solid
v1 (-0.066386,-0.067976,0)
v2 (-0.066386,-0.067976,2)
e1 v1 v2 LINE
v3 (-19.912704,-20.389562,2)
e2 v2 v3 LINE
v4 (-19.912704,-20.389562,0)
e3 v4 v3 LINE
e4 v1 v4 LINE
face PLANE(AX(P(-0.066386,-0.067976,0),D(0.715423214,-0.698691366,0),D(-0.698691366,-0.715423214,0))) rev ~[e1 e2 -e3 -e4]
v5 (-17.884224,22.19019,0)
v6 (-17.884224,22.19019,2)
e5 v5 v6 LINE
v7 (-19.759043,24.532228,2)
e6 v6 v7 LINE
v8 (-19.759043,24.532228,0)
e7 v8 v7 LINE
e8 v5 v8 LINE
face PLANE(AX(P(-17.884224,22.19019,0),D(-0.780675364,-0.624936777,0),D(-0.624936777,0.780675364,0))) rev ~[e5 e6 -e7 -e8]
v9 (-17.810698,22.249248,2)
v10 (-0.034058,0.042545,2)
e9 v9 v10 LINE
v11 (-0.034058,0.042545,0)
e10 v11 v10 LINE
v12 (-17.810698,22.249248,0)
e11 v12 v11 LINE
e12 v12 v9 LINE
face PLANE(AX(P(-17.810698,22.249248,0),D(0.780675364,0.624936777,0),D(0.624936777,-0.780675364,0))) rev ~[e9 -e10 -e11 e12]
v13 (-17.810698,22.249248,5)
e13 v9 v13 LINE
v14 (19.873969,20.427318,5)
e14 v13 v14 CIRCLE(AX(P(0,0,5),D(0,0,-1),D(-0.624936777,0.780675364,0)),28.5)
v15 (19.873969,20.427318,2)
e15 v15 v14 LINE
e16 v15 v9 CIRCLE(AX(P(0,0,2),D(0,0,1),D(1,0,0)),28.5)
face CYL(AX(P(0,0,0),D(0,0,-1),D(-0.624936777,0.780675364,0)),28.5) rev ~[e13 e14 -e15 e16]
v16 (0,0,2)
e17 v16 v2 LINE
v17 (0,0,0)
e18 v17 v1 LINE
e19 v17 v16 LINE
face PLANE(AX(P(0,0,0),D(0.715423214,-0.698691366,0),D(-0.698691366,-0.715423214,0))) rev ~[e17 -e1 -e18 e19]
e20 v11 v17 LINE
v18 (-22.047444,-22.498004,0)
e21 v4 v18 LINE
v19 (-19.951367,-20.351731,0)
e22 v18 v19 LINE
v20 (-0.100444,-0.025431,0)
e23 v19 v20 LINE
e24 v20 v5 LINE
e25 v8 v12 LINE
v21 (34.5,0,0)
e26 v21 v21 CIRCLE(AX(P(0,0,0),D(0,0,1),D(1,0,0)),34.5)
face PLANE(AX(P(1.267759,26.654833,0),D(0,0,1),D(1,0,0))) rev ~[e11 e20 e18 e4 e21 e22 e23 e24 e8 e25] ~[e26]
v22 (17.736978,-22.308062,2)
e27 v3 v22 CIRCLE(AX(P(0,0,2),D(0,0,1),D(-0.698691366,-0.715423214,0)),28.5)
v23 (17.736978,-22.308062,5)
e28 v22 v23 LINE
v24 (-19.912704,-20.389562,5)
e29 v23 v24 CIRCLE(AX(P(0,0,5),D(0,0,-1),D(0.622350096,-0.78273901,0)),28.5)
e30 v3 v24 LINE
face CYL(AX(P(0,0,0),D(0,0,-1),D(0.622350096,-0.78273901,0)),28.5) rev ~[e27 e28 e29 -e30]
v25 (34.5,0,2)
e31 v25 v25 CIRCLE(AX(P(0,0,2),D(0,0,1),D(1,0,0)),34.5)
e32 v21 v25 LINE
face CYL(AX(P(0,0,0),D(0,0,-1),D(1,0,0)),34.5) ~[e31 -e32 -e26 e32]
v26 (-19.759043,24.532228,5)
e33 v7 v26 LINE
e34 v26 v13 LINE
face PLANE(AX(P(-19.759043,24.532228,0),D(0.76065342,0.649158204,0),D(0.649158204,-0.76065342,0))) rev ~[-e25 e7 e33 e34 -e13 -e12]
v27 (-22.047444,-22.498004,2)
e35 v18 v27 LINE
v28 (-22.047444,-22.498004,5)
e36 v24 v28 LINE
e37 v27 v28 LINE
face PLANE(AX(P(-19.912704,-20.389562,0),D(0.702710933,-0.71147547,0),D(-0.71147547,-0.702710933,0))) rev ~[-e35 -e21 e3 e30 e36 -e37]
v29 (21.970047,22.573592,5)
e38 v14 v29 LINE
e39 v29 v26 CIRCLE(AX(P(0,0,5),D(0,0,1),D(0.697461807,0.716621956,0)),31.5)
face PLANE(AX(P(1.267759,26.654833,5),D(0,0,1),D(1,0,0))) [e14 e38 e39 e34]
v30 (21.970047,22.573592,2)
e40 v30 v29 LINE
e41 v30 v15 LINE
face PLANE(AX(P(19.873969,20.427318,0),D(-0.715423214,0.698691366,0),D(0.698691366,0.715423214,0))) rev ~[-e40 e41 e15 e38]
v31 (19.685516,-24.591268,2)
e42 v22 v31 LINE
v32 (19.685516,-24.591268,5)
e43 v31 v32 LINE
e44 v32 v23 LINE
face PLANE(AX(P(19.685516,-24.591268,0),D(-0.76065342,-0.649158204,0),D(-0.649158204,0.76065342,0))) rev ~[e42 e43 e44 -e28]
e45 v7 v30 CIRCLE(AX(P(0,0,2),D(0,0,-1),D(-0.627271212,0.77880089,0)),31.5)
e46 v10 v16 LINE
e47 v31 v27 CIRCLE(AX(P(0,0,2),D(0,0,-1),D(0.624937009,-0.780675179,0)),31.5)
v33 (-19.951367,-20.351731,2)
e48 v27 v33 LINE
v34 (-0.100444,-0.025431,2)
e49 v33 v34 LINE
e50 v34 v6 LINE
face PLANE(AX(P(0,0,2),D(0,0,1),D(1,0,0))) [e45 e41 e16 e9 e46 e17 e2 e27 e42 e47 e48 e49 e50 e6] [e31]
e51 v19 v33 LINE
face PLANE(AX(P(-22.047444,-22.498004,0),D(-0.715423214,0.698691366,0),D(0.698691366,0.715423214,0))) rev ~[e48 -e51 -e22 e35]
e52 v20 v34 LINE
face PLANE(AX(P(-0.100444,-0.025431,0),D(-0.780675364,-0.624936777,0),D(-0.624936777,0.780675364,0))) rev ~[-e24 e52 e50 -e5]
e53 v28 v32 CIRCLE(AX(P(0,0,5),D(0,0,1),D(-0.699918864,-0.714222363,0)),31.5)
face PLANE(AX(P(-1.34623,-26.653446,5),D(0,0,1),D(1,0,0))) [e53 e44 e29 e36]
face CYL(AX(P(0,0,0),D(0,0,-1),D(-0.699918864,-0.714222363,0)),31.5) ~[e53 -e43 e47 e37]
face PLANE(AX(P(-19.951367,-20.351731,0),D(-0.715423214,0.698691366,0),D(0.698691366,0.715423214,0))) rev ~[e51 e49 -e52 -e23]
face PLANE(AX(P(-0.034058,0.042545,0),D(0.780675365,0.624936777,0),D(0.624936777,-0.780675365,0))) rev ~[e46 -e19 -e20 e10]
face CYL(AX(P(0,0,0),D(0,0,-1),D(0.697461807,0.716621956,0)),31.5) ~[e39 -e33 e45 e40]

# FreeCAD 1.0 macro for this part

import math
import FreeCAD as App
import Part
import Sketcher
from FreeCAD import Vector
Q = App.Units.Quantity

doc = App.newDocument("Part")
body = doc.addObject("PartDesign::Body", "Body")

# Sketch on XY plane
sketch1 = body.newObject("Sketcher::SketchObject", "Sketch")
sketch1.AttachmentSupport = (doc.getObject("XY_Plane"), [""])
sketch1.MapMode = "FlatFace"
sketch1.addGeometry([
    Part.Circle(Vector(0, 0, 0), Vector(0, 0, 1), 34.5),  # 0
    Part.ArcOfCircle(Part.Circle(Vector(0, 0, 0), Vector(0, 0, 1), 31.5), math.radians(45.776283), math.radians(128.849083)),  # 1
    Part.LineSegment(Vector(21.970047, 22.573592, 0), Vector(19.873969, 20.427318, 0)),  # 2
    Part.ArcOfCircle(Part.Circle(Vector(0, 0, 0), Vector(0, 0, 1), 28.5), math.radians(45.786639), math.radians(128.677547)),  # 3
    Part.LineSegment(Vector(-17.810698, 22.249248, 0), Vector(-0.034058, 0.042545, 0)),  # 4
    Part.LineSegment(Vector(-0.034058, 0.042545, 0), Vector(0, 0, 0)),  # 5
    Part.LineSegment(Vector(0, 0, 0), Vector(-0.066386, -0.067976, 0)),  # 6
    Part.LineSegment(Vector(-0.066386, -0.067976, 0), Vector(-19.912704, -20.389562, 0)),  # 7
    Part.ArcOfCircle(Part.Circle(Vector(0, 0, 0), Vector(0, 0, 1), 28.5), math.radians(-134.322106), math.radians(-51.512045)),  # 8
    Part.LineSegment(Vector(17.736978, -22.308062, 0), Vector(19.685516, -24.591268, 0)),  # 9
    Part.ArcOfCircle(Part.Circle(Vector(0, 0, 0), Vector(0, 0, 1), 31.5), math.radians(-134.420495), math.radians(-51.322436)),  # 10
    Part.LineSegment(Vector(-22.047444, -22.498004, 0), Vector(-19.951367, -20.351731, 0)),  # 11
    Part.LineSegment(Vector(-19.951367, -20.351731, 0), Vector(-0.100444, -0.025431, 0)),  # 12
    Part.LineSegment(Vector(-0.100444, -0.025431, 0), Vector(-17.884224, 22.19019, 0)),  # 13
    Part.LineSegment(Vector(-17.884224, 22.19019, 0), Vector(-19.759043, 24.532228, 0)),  # 14
], False)
sketch1.addConstraint([
    Sketcher.Constraint("Coincident", 1, 1, 2, 1),
    Sketcher.Constraint("Coincident", 2, 2, 3, 1),
    Sketcher.Constraint("Coincident", 3, 2, 4, 1),
    Sketcher.Constraint("Coincident", 4, 2, 5, 1),
    Sketcher.Constraint("Coincident", 5, 2, 6, 1),
    Sketcher.Constraint("Coincident", 6, 2, 7, 1),
    Sketcher.Constraint("Coincident", 7, 2, 8, 1),
    Sketcher.Constraint("Coincident", 8, 2, 9, 1),
    Sketcher.Constraint("Coincident", 9, 2, 10, 2),
    Sketcher.Constraint("Coincident", 10, 1, 11, 1),
    Sketcher.Constraint("Coincident", 11, 2, 12, 1),
    Sketcher.Constraint("Coincident", 12, 2, 13, 1),
    Sketcher.Constraint("Coincident", 13, 2, 14, 1),
    Sketcher.Constraint("Coincident", 14, 2, 1, 2),
    Sketcher.Constraint("Coincident", 0, 3, -1, 1),
    Sketcher.Constraint("Coincident", 1, 3, -1, 1),
    Sketcher.Constraint("Coincident", 3, 3, -1, 1),
    Sketcher.Constraint("Coincident", 8, 3, -1, 1),
    Sketcher.Constraint("Coincident", 10, 3, -1, 1),
    Sketcher.Constraint("Coincident", 5, 2, -1, 1),
    Sketcher.Constraint("Equal", 3, 8),
    Sketcher.Constraint("Equal", 1, 10),
    Sketcher.Constraint("Parallel", 4, 5),
    Sketcher.Constraint("Parallel", 2, 6),
    Sketcher.Constraint("Parallel", 6, 7),
    Sketcher.Constraint("Parallel", 7, 11),
    Sketcher.Constraint("Parallel", 11, 12),
    Sketcher.Constraint("Parallel", 4, 13),
    Sketcher.Constraint("Parallel", 13, 14),
    Sketcher.Constraint("Equal", 2, 11),
    Sketcher.Constraint("Diameter", 0, Q("69 mm")),
    Sketcher.Constraint("Radius", 1, Q("31.5 mm")),
    Sketcher.Constraint("Radius", 3, Q("28.5 mm")),
    Sketcher.Constraint("Distance", 4, Q("28.445502 mm")),
    Sketcher.Constraint("DistanceX", 3, 2, -1, 1, Q("17.810698 mm")),
    Sketcher.Constraint("DistanceX", 6, 2, 9, 2, Q("19.751902 mm")),
    Sketcher.Constraint("DistanceX", 14, 2, 12, 2, Q("19.658599 mm")),
    Sketcher.Constraint("Distance", 9, Q("3.001638 mm")),
    Sketcher.Constraint("DistanceY", -1, 1, 1, 1, Q("22.573592 mm")),
    Sketcher.Constraint("DistanceX", -1, 1, 2, 2, Q("19.873969 mm")),
    Sketcher.Constraint("DistanceY", 8, 2, -1, 1, Q("22.308062 mm")),
    Sketcher.Constraint("DistanceY", 11, 2, -1, 1, Q("20.351731 mm")),
    Sketcher.Constraint("DistanceY", -1, 1, 13, 2, Q("22.19019 mm")),
])
pad1 = body.newObject("PartDesign::Pad", "Pad")
pad1.Profile = sketch1
pad1.Length = 2

# Sketch on XY plane
sketch2 = body.newObject("Sketcher::SketchObject", "Sketch001")
sketch2.AttachmentSupport = (doc.getObject("XY_Plane"), [""])
sketch2.MapMode = "FlatFace"
sketch2.addGeometry([
    Part.ArcOfCircle(Part.Circle(Vector(0, 0, 0), Vector(0, 0, 1), 28.5), math.radians(45.786639), math.radians(128.677547)),  # 0
    Part.LineSegment(Vector(19.873969, 20.427318, 0), Vector(21.970047, 22.573592, 0)),  # 1
    Part.ArcOfCircle(Part.Circle(Vector(0, 0, 0), Vector(0, 0, 1), 31.5), math.radians(45.776283), math.radians(128.849083)),  # 2
    Part.LineSegment(Vector(-19.759043, 24.532228, 0), Vector(-17.810698, 22.249248, 0)),  # 3
    Part.LineSegment(Vector(19.685516, -24.591268, 0), Vector(17.736978, -22.308062, 0)),  # 4
    Part.ArcOfCircle(Part.Circle(Vector(0, 0, 0), Vector(0, 0, 1), 28.5), math.radians(-134.322106), math.radians(-51.512045)),  # 5
    Part.LineSegment(Vector(-19.912704, -20.389562, 0), Vector(-22.047444, -22.498004, 0)),  # 6
    Part.ArcOfCircle(Part.Circle(Vector(0, 0, 0), Vector(0, 0, 1), 31.5), math.radians(-134.420495), math.radians(-51.322436)),  # 7
], False)
sketch2.addConstraint([
    Sketcher.Constraint("Coincident", 0, 1, 1, 1),
    Sketcher.Constraint("Coincident", 1, 2, 2, 1),
    Sketcher.Constraint("Coincident", 2, 2, 3, 1),
    Sketcher.Constraint("Coincident", 3, 2, 0, 2),
    Sketcher.Constraint("Coincident", 4, 2, 5, 2),
    Sketcher.Constraint("Coincident", 5, 1, 6, 1),
    Sketcher.Constraint("Coincident", 6, 2, 7, 1),
    Sketcher.Constraint("Coincident", 7, 2, 4, 1),
    Sketcher.Constraint("Coincident", 0, 3, -1, 1),
    Sketcher.Constraint("Coincident", 2, 3, -1, 1),
    Sketcher.Constraint("Coincident", 5, 3, -1, 1),
    Sketcher.Constraint("Coincident", 7, 3, -1, 1),
    Sketcher.Constraint("Equal", 0, 5),
    Sketcher.Constraint("Equal", 2, 7),
    Sketcher.Constraint("Parallel", 3, 4),
    Sketcher.Constraint("Radius", 0, Q("28.5 mm")),
    Sketcher.Constraint("Radius", 2, Q("31.5 mm")),
    Sketcher.Constraint("DistanceX", 3, 2, -1, 1, Q("17.810698 mm")),
    Sketcher.Constraint("DistanceY", 4, 2, 5, 1, Q("1.9185 mm")),
    Sketcher.Constraint("Distance", 3, Q("3.001341 mm")),
    Sketcher.Constraint("Distance", 6, Q("3.000441 mm")),
    Sketcher.Constraint("DistanceX", -1, 1, 0, 1, Q("19.873969 mm")),
    Sketcher.Constraint("DistanceY", -1, 1, 1, 2, Q("22.573592 mm")),
    Sketcher.Constraint("DistanceY", 4, 2, -1, 1, Q("22.308062 mm")),
])
pad2 = body.newObject("PartDesign::Pad", "Pad001")
pad2.Profile = sketch2
pad2.Length = 5

doc.recompute()
